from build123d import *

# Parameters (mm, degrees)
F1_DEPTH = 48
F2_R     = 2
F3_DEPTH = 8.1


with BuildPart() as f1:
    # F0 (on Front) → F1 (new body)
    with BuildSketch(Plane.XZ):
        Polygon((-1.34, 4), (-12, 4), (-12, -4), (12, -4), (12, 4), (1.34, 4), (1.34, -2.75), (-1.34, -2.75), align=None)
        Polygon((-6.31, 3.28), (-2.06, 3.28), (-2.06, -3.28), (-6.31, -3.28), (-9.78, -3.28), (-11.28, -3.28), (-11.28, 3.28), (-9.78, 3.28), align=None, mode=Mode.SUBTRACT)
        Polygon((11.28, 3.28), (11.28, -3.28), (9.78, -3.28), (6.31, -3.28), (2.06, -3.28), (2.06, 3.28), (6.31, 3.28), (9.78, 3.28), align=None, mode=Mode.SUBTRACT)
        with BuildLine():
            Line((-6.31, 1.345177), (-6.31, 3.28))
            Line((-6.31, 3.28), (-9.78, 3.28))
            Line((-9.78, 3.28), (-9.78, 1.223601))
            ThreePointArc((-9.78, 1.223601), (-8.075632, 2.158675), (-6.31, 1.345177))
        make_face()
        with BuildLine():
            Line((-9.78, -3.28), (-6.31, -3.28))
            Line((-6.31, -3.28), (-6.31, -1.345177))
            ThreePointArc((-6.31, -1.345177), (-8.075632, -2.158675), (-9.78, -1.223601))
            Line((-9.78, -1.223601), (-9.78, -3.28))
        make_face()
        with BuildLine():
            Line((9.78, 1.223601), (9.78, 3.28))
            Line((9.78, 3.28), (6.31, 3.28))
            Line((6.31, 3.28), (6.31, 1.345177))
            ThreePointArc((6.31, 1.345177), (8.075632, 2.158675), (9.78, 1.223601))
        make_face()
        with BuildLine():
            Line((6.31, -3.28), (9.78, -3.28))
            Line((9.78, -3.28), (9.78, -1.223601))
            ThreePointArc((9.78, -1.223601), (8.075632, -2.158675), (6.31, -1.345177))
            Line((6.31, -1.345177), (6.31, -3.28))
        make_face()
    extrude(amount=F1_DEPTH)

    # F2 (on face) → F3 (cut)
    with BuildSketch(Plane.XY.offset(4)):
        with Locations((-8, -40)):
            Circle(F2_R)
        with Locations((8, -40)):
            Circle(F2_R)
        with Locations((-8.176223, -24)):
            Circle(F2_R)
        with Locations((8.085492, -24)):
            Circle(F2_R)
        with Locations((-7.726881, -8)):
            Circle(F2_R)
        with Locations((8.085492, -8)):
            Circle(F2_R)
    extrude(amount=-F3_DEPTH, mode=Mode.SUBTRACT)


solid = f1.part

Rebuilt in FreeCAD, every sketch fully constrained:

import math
import FreeCAD as App
import Part
import Sketcher

V = App.Vector
Q = App.Units.Quantity

doc = App.newDocument("Part")
params = doc.addObject("Spreadsheet::Sheet", "Params")
for row, (alias, value) in enumerate([
    ("sketch1_width", "24 mm"),
    ("sketch1_height", "8 mm"),
    ("sketch1_radius", "2.160001 mm"),
    ("sketch1_width2", "1.5 mm"),
    ("sketch1_width3", "10.66 mm"),
    ("pad1_length", "48 mm"),
    ("sketch2_diameter", "4 mm"),
    ("pocket1_length", "8.1 mm"),
], start=1):
    params.set(f"A{row}", alias)
    params.set(f"B{row}", "=" + value)
    params.setAlias(f"B{row}", alias)

body = doc.addObject("PartDesign::Body", "Body")

sketch1 = body.newObject("Sketcher::SketchObject", "Sketch")
sketch1.AttachmentSupport = (doc.getObject("XZ_Plane"), [""])
sketch1.MapMode = "FlatFace"
sketch1.addGeometry([
    Part.LineSegment(V(-1.3, 4, 0), V(-12, 4, 0)),
    Part.LineSegment(V(-12, 4, 0), V(-12, -4, 0)),
    Part.LineSegment(V(-12, -4, 0), V(12, -4, 0)),
    Part.LineSegment(V(12, -4, 0), V(12, 4, 0)),
    Part.LineSegment(V(12, 4, 0), V(1.3, 4, 0)),
    Part.LineSegment(V(1.3, 4, 0), V(1.3, -2.8, 0)),
    Part.LineSegment(V(1.3, -2.8, 0), V(-1.3, -2.8, 0)),
    Part.LineSegment(V(-1.3, -2.8, 0), V(-1.3, 4, 0)),
    Part.LineSegment(V(-11.3, 3.3, 0), V(-9.8, 3.3, 0)),
    Part.LineSegment(V(-9.8, 3.3, 0), V(-9.8, 1.2, 0)),
    Part.ArcOfCircle(Part.Circle(V(-8, 0, 0), V(0, 0, 1), 2.2), math.radians(39), math.radians(145)),
    Part.LineSegment(V(-6.3, 1.3, 0), V(-6.3, 3.3, 0)),
    Part.LineSegment(V(-6.3, 3.3, 0), V(-2.1, 3.3, 0)),
    Part.LineSegment(V(-2.1, 3.3, 0), V(-2.1, -3.3, 0)),
    Part.LineSegment(V(-2.1, -3.3, 0), V(-6.3, -3.3, 0)),
    Part.LineSegment(V(-6.3, -3.3, 0), V(-6.3, -1.3, 0)),
    Part.ArcOfCircle(Part.Circle(V(-8, 0, 0), V(0, 0, 1), 2.2), math.radians(-145), math.radians(-39)),
    Part.LineSegment(V(-9.8, -1.2, 0), V(-9.8, -3.3, 0)),
    Part.LineSegment(V(-9.8, -3.3, 0), V(-11.3, -3.3, 0)),
    Part.LineSegment(V(-11.3, -3.3, 0), V(-11.3, 3.3, 0)),
    Part.LineSegment(V(2.1, 3.3, 0), V(6.3, 3.3, 0)),
    Part.LineSegment(V(6.3, 3.3, 0), V(6.3, 1.3, 0)),
    Part.ArcOfCircle(Part.Circle(V(8, 0, 0), V(0, 0, 1), 2.2), math.radians(35), math.radians(141)),
    Part.LineSegment(V(9.8, 1.2, 0), V(9.8, 3.3, 0)),
    Part.LineSegment(V(9.8, 3.3, 0), V(11.3, 3.3, 0)),
    Part.LineSegment(V(11.3, 3.3, 0), V(11.3, -3.3, 0)),
    Part.LineSegment(V(11.3, -3.3, 0), V(9.8, -3.3, 0)),
    Part.LineSegment(V(9.8, -3.3, 0), V(9.8, -1.2, 0)),
    Part.ArcOfCircle(Part.Circle(V(8, 0, 0), V(0, 0, 1), 2.2), math.radians(-141), math.radians(-35)),
    Part.LineSegment(V(6.3, -1.3, 0), V(6.3, -3.3, 0)),
    Part.LineSegment(V(6.3, -3.3, 0), V(2.1, -3.3, 0)),
    Part.LineSegment(V(2.1, -3.3, 0), V(2.1, 3.3, 0)),
], False)
sketch1.addConstraint([
    Sketcher.Constraint("Coincident", 0, 2, 1, 1),
    Sketcher.Constraint("Coincident", 1, 2, 2, 1),
    Sketcher.Constraint("Coincident", 2, 2, 3, 1),
    Sketcher.Constraint("Coincident", 3, 2, 4, 1),
    Sketcher.Constraint("Coincident", 4, 2, 5, 1),
    Sketcher.Constraint("Coincident", 5, 2, 6, 1),
    Sketcher.Constraint("Coincident", 6, 2, 7, 1),
    Sketcher.Constraint("Coincident", 7, 2, 0, 1),
    Sketcher.Constraint("Coincident", 8, 2, 9, 1),
    Sketcher.Constraint("Coincident", 9, 2, 10, 2),
    Sketcher.Constraint("Coincident", 10, 1, 11, 1),
    Sketcher.Constraint("Coincident", 11, 2, 12, 1),
    Sketcher.Constraint("Coincident", 12, 2, 13, 1),
    Sketcher.Constraint("Coincident", 13, 2, 14, 1),
    Sketcher.Constraint("Coincident", 14, 2, 15, 1),
    Sketcher.Constraint("Coincident", 15, 2, 16, 2),
    Sketcher.Constraint("Coincident", 16, 1, 17, 1),
    Sketcher.Constraint("Coincident", 17, 2, 18, 1),
    Sketcher.Constraint("Coincident", 18, 2, 19, 1),
    Sketcher.Constraint("Coincident", 19, 2, 8, 1),
    Sketcher.Constraint("Coincident", 20, 2, 21, 1),
    Sketcher.Constraint("Coincident", 21, 2, 22, 2),
    Sketcher.Constraint("Coincident", 22, 1, 23, 1),
    Sketcher.Constraint("Coincident", 23, 2, 24, 1),
    Sketcher.Constraint("Coincident", 24, 2, 25, 1),
    Sketcher.Constraint("Coincident", 25, 2, 26, 1),
    Sketcher.Constraint("Coincident", 26, 2, 27, 1),
    Sketcher.Constraint("Coincident", 27, 2, 28, 2),
    Sketcher.Constraint("Coincident", 28, 1, 29, 1),
    Sketcher.Constraint("Coincident", 29, 2, 30, 1),
    Sketcher.Constraint("Coincident", 30, 2, 31, 1),
    Sketcher.Constraint("Coincident", 31, 2, 20, 1),
    Sketcher.Constraint("Horizontal", 0),
    Sketcher.Constraint("Vertical", 1),
    Sketcher.Constraint("Horizontal", 2),
    Sketcher.Constraint("Vertical", 3),
    Sketcher.Constraint("Horizontal", 4),
    Sketcher.Constraint("Vertical", 5),
    Sketcher.Constraint("Horizontal", 6),
    Sketcher.Constraint("Vertical", 7),
    Sketcher.Constraint("Horizontal", 8),
    Sketcher.Constraint("Vertical", 9),
    Sketcher.Constraint("Vertical", 11),
    Sketcher.Constraint("Horizontal", 12),
    Sketcher.Constraint("Vertical", 13),
    Sketcher.Constraint("Horizontal", 14),
    Sketcher.Constraint("Vertical", 15),
    Sketcher.Constraint("Vertical", 17),
    Sketcher.Constraint("Horizontal", 18),
    Sketcher.Constraint("Vertical", 19),
    Sketcher.Constraint("Horizontal", 20),
    Sketcher.Constraint("Vertical", 21),
    Sketcher.Constraint("Vertical", 23),
    Sketcher.Constraint("Horizontal", 24),
    Sketcher.Constraint("Vertical", 25),
    Sketcher.Constraint("Horizontal", 26),
    Sketcher.Constraint("Vertical", 27),
    Sketcher.Constraint("Vertical", 29),
    Sketcher.Constraint("Horizontal", 30),
    Sketcher.Constraint("Vertical", 31),
    Sketcher.Constraint("Coincident", 16, 3, 10, 3),
    Sketcher.Constraint("Coincident", 28, 3, 22, 3),
    Sketcher.Constraint("Equal", 10, 16),
    Sketcher.Constraint("Equal", 16, 22),
    Sketcher.Constraint("Equal", 22, 28),
    Sketcher.Constraint("Symmetric", 10, 3, 22, 3, -1, 1),
    Sketcher.Constraint("Symmetric", 0, 2, 2, 2, -1, 1),
    Sketcher.Constraint("Symmetric", 14, 2, 20, 2, -1, 1),
    Sketcher.Constraint("Symmetric", 17, 2, 23, 2, -1, 1),
    Sketcher.Constraint("Symmetric", 19, 2, 25, 2, -1, 1),
    Sketcher.Constraint("Symmetric", 11, 2, 29, 2, -1, 1),
    Sketcher.Constraint("Symmetric", 4, 2, 7, 2, -2),
    Sketcher.Constraint("Symmetric", 11, 2, 20, 2, -2),
    Sketcher.Constraint("Symmetric", 9, 2, 22, 1, -2),
    Sketcher.Constraint("Symmetric", 17, 2, 26, 2, -2),
    Sketcher.Constraint("Horizontal", 8, 2, 11, 2),
    Sketcher.Constraint("Equal", 14, 20),
    Sketcher.Constraint("DistanceX", 2, 1, 2, 2, Q("24 mm")),
    Sketcher.Constraint("DistanceY", 1, 2, 1, 1, Q("8 mm")),
    Sketcher.Constraint("Radius", 10, Q("2.160001 mm")),
    Sketcher.Constraint("DistanceX", 8, 1, 8, 2, Q("1.5 mm")),
    Sketcher.Constraint("DistanceX", 10, 3, -1, 1, Q("8 mm")),
    Sketcher.Constraint("DistanceX", 0, 2, 0, 1, Q("10.66 mm")),
    Sketcher.Constraint("DistanceX", 12, 1, 12, 2, Q("4.25 mm")),
    Sketcher.Constraint("DistanceY", 5, 2, 5, 1, Q("6.75 mm")),
    Sketcher.Constraint("DistanceY", 13, 2, 13, 1, Q("6.56 mm")),
    Sketcher.Constraint("DistanceX", 12, 2, 4, 2, Q("3.4 mm")),
    Sketcher.Constraint("DistanceX", 8, 2, -1, 1, Q("9.78 mm")),
])
sketch1.setExpression("Constraints[77]", "Params.sketch1_width")
sketch1.setExpression("Constraints[78]", "Params.sketch1_height")
sketch1.setExpression("Constraints[79]", "Params.sketch1_radius")
sketch1.setExpression("Constraints[80]", "Params.sketch1_width2")
sketch1.setExpression("Constraints[82]", "Params.sketch1_width3")
pad1 = body.newObject("PartDesign::Pad", "Pad")
pad1.Profile = sketch1
pad1.setExpression("Length", "Params.pad1_length")

sketch2 = body.newObject("Sketcher::SketchObject", "Sketch001")
sketch2.AttachmentSupport = (doc.getObject("XY_Plane"), [""])
sketch2.MapMode = "FlatFace"
sketch2.AttachmentOffset = App.Placement(V(0, 0, 4), App.Rotation())
sketch2.addGeometry([
    Part.Circle(V(-8, -40, 0), V(0, 0, 1), 2),
    Part.Circle(V(8, -40, 0), V(0, 0, 1), 2),
    Part.Circle(V(-8.2, -24, 0), V(0, 0, 1), 2),
    Part.Circle(V(8.1, -24, 0), V(0, 0, 1), 2),
    Part.Circle(V(-7.7, -8, 0), V(0, 0, 1), 2),
    Part.Circle(V(8.1, -8, 0), V(0, 0, 1), 2),
], False)
sketch2.addConstraint([
    Sketcher.Constraint("Equal", 0, 1),
    Sketcher.Constraint("Equal", 1, 2),
    Sketcher.Constraint("Equal", 2, 3),
    Sketcher.Constraint("Equal", 3, 4),
    Sketcher.Constraint("Equal", 4, 5),
    Sketcher.Constraint("Symmetric", 0, 3, 1, 3, -2),
    Sketcher.Constraint("Horizontal", 2, 3, 3, 3),
    Sketcher.Constraint("Horizontal", 4, 3, 5, 3),
    Sketcher.Constraint("Vertical", 3, 3, 5, 3),
    Sketcher.Constraint("Diameter", 0, Q("4 mm")),
    Sketcher.Constraint("DistanceX", 0, 3, -1, 1, Q("8 mm")),
    Sketcher.Constraint("DistanceY", 0, 3, -1, 1, Q("40 mm")),
    Sketcher.Constraint("DistanceY", 2, 3, -1, 1, Q("24 mm")),
    Sketcher.Constraint("DistanceY", 4, 3, -1, 1, Q("8 mm")),
    Sketcher.Constraint("DistanceX", 4, 3, -1, 1, Q("7.726881 mm")),
    Sketcher.Constraint("DistanceX", 2, 3, -1, 1, Q("8.176223 mm")),
    Sketcher.Constraint("DistanceX", -1, 1, 3, 3, Q("8.085492 mm")),
])
sketch2.setExpression("Constraints[9]", "Params.sketch2_diameter")
pocket1 = body.newObject("PartDesign::Pocket", "Pocket")
pocket1.Profile = sketch2
pocket1.setExpression("Length", "Params.pocket1_length")

doc.recompute()
